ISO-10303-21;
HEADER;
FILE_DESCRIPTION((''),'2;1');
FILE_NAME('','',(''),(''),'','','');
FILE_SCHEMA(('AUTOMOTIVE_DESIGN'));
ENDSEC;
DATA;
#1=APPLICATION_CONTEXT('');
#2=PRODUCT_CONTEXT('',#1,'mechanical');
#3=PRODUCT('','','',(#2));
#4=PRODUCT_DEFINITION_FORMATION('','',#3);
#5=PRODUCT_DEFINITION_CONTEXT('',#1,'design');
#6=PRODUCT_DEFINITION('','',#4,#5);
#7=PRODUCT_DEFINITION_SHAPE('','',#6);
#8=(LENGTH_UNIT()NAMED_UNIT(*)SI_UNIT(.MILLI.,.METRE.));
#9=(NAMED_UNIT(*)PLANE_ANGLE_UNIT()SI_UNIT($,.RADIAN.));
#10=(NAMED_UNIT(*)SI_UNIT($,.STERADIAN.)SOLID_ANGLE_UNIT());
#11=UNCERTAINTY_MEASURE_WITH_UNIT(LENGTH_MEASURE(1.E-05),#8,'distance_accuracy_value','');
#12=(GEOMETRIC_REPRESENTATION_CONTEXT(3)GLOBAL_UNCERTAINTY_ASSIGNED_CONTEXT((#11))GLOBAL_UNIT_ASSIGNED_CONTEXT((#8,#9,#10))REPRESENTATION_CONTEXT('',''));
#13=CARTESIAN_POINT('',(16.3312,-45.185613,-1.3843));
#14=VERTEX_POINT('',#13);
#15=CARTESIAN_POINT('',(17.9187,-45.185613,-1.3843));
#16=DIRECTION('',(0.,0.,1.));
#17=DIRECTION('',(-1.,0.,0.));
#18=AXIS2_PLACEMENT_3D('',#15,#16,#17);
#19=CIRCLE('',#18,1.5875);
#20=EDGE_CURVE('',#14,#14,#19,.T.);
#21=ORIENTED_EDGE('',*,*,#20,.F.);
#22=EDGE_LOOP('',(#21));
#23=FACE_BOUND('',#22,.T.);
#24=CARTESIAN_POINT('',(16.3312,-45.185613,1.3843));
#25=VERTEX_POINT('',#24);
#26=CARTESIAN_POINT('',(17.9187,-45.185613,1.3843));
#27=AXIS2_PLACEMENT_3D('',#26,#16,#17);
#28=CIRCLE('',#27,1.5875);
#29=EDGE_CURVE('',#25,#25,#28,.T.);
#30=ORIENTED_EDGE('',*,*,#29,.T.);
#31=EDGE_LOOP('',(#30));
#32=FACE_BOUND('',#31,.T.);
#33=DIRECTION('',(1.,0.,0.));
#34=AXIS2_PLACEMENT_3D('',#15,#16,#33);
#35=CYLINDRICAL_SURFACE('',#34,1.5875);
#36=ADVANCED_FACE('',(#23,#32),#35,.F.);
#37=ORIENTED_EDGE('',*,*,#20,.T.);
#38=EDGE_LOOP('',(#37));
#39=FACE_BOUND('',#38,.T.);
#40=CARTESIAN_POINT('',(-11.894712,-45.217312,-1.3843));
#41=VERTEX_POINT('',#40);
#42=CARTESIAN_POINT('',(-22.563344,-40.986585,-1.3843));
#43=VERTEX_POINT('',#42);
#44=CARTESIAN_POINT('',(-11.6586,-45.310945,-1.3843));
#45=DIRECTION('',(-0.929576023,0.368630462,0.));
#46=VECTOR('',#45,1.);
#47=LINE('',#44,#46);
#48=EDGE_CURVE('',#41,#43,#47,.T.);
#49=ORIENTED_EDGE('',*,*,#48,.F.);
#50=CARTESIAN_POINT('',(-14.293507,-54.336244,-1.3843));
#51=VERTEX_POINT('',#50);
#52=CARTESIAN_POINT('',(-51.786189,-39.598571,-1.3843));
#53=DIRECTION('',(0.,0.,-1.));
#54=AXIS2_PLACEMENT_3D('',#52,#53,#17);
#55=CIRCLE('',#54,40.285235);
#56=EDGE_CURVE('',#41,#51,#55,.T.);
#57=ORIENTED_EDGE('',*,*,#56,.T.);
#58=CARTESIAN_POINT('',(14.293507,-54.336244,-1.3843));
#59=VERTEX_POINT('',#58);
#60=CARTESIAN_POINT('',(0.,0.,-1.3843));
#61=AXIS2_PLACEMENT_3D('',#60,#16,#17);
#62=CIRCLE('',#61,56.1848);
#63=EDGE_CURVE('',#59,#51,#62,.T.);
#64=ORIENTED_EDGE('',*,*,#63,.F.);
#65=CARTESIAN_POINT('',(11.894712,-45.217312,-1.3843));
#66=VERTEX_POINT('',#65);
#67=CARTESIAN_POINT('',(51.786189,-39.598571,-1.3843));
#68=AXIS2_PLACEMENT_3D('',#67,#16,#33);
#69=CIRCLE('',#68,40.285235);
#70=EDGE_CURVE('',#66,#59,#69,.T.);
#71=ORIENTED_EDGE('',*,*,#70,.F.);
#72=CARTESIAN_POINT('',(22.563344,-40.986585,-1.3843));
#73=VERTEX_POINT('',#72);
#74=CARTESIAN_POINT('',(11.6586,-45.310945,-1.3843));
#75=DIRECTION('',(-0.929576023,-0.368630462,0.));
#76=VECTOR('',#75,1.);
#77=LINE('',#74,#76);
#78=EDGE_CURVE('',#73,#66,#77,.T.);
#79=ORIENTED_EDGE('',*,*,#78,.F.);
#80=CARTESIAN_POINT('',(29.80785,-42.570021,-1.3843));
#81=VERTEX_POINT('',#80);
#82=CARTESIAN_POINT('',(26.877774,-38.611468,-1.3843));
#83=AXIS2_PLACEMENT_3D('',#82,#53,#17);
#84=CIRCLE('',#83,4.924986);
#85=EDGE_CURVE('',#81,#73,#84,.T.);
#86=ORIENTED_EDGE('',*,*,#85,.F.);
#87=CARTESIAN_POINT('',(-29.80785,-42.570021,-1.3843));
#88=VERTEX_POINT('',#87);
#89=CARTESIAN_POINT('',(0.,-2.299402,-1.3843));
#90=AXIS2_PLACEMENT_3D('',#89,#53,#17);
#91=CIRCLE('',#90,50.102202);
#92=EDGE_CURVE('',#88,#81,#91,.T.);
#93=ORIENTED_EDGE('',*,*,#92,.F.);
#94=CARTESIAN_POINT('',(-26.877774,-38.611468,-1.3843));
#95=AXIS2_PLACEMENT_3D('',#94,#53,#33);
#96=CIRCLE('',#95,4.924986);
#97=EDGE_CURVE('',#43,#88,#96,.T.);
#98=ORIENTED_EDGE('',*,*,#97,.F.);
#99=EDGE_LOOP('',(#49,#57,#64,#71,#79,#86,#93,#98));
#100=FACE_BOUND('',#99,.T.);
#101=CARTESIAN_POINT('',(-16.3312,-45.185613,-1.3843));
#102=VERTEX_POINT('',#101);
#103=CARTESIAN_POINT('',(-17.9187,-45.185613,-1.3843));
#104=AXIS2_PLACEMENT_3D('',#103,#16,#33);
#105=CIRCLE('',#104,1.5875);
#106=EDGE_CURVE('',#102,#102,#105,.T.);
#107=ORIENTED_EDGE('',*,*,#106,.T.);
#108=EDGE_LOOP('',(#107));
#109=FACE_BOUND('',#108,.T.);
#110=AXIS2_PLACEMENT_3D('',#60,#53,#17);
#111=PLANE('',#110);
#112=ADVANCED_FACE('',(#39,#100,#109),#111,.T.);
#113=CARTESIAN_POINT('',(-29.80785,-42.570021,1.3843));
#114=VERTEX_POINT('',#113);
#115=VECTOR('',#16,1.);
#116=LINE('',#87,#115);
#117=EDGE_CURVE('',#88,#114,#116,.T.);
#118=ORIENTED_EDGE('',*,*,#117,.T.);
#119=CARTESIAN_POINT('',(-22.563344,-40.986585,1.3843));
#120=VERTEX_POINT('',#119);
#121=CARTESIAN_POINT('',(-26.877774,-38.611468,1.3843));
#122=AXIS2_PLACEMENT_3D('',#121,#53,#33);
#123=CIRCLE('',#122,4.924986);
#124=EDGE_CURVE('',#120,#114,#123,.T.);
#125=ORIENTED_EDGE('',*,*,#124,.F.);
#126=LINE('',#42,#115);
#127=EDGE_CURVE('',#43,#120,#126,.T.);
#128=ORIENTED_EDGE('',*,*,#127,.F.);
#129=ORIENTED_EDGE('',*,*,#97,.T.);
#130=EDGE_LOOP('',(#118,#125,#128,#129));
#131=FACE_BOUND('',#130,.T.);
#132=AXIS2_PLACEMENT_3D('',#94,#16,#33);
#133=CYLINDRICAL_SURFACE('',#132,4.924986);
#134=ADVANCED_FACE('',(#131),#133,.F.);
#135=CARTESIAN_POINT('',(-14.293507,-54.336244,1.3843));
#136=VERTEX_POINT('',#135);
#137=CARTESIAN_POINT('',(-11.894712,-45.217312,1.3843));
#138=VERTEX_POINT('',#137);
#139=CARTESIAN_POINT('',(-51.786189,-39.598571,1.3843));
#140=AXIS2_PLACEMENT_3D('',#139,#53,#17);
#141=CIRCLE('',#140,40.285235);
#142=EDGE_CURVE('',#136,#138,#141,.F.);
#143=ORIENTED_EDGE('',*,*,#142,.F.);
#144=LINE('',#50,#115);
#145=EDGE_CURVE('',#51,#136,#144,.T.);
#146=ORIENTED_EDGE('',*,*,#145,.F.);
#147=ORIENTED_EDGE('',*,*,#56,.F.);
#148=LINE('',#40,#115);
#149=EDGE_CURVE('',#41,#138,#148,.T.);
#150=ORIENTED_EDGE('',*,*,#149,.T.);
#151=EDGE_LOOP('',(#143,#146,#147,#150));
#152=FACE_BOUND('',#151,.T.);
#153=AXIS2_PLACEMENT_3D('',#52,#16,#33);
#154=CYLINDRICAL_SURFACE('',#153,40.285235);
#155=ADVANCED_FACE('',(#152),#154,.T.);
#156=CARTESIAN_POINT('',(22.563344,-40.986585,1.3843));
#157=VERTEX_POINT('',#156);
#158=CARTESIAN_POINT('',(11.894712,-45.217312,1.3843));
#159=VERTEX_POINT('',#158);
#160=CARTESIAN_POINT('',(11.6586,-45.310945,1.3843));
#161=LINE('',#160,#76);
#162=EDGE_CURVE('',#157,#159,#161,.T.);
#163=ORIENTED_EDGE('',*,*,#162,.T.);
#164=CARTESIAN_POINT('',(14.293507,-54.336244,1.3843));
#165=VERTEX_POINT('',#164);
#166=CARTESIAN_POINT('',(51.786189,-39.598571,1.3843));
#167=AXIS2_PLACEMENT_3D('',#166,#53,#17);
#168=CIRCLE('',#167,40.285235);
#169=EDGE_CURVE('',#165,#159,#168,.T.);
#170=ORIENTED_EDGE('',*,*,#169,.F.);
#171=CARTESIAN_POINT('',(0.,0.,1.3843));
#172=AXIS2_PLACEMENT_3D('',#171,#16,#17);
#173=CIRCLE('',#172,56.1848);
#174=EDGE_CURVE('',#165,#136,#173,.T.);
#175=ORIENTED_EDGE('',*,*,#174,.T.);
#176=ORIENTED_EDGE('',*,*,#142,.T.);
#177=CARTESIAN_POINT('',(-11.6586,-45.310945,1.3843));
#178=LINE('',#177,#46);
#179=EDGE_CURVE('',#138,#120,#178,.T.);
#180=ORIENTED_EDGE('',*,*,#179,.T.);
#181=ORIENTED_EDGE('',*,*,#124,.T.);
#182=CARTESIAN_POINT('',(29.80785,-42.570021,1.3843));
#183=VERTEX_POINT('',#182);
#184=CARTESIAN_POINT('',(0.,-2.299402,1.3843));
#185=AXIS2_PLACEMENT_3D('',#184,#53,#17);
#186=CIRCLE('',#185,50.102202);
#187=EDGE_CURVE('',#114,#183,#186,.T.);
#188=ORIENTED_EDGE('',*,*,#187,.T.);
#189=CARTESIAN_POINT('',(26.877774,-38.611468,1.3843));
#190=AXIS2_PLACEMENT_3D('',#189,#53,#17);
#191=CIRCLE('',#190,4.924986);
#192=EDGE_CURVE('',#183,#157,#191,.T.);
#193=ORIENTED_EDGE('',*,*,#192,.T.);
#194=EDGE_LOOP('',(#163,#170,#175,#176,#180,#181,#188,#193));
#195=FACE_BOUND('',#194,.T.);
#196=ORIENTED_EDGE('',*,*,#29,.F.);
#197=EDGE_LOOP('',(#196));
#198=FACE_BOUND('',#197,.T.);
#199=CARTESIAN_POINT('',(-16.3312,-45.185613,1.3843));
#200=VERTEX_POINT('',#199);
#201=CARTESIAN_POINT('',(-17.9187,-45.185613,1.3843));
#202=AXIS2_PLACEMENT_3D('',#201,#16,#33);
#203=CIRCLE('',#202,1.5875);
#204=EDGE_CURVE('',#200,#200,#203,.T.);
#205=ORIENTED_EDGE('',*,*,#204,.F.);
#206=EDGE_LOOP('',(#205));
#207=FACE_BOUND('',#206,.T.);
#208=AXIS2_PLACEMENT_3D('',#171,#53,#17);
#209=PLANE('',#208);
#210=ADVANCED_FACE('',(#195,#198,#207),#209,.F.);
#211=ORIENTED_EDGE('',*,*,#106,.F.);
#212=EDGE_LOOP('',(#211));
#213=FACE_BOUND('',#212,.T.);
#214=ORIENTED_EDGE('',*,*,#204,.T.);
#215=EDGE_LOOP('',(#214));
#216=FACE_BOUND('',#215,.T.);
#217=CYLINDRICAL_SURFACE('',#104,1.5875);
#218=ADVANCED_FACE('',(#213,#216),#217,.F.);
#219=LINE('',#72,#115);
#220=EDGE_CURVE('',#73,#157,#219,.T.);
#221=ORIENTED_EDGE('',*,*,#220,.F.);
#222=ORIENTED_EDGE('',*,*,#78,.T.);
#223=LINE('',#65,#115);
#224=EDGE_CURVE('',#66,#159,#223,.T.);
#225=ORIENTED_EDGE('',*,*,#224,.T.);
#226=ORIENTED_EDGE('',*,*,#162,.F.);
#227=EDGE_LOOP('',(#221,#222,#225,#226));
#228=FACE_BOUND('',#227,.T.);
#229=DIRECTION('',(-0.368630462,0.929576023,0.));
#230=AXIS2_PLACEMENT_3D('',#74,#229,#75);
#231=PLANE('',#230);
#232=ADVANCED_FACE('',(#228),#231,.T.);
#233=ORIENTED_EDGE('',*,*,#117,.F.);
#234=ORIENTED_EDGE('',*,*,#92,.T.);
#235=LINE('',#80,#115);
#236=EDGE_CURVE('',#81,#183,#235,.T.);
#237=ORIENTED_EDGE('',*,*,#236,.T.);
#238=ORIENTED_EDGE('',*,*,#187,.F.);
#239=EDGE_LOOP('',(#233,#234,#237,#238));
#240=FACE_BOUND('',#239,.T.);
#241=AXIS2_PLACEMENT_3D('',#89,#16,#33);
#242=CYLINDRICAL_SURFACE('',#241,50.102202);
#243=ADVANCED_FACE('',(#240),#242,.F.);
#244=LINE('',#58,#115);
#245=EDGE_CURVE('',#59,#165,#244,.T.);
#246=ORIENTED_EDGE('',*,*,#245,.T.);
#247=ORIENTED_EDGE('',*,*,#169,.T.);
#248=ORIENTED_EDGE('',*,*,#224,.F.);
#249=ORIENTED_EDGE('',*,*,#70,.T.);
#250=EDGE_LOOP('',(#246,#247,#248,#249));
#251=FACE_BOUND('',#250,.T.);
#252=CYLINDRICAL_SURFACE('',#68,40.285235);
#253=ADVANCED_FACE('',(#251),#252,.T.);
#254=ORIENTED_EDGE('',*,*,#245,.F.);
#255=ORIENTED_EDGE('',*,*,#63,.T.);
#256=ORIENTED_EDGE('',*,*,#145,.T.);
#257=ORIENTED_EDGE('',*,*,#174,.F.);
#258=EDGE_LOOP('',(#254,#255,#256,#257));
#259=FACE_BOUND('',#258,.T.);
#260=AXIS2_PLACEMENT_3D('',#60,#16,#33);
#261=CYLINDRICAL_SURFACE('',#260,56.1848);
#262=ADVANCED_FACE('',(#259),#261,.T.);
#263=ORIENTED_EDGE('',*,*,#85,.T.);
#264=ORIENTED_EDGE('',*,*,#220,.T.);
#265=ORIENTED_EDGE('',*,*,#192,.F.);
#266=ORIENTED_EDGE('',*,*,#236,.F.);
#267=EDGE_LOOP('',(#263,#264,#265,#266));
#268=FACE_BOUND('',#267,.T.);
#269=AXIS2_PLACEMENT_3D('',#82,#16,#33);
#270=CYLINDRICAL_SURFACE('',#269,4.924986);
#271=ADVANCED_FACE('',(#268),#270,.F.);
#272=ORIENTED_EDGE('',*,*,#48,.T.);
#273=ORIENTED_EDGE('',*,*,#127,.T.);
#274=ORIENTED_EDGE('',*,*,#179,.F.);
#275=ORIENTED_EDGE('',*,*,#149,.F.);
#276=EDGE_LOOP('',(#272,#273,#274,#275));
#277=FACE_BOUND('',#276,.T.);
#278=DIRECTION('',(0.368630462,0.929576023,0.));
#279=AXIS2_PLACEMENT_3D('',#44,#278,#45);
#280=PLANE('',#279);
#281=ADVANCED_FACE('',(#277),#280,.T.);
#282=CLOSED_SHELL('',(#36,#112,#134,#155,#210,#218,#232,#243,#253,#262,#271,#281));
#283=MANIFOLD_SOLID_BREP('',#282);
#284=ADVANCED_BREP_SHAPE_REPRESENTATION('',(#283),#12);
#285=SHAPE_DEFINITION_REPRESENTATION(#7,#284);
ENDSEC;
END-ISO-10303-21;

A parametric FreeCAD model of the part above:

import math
import FreeCAD as App
import Part
import Sketcher

V = App.Vector
Q = App.Units.Quantity

doc = App.newDocument("Part")
body = doc.addObject("PartDesign::Body", "Body")

# Sketch on XY plane
sketch1 = body.newObject("Sketcher::SketchObject", "Sketch")
sketch1.AttachmentSupport = (doc.getObject("XY_Plane"), [""])
sketch1.MapMode = "FlatFace"
sketch1.addGeometry([
    Part.LineSegment(V(-14.000447, -54.412492, 0), V(-11.6586, -45.310945, 0)),  # 0
    Part.LineSegment(V(-11.6586, -45.310945, 0), V(-22.563344, -40.986585, 0)),  # 1
    Part.ArcOfCircle(Part.Circle(V(-26.877774, -38.611468, 0), V(0, 0, 1), 4.924986), math.radians(-126.50842), math.radians(-28.833029)),  # 2
    Part.ArcOfCircle(Part.Circle(V(0, -2.299402, 0), V(0, 0, 1), 50.102202), math.radians(-53.49158), math.radians(233.49158)),  # 3
    Part.ArcOfCircle(Part.Circle(V(26.877774, -38.611468, 0), V(0, 0, 1), 4.924986), math.radians(-151.166971), math.radians(-53.49158)),  # 4
    Part.LineSegment(V(22.563344, -40.986585, 0), V(11.6586, -45.310945, 0)),  # 5
    Part.LineSegment(V(11.6586, -45.310945, 0), V(14.000447, -54.412492, 0)),  # 6
    Part.ArcOfCircle(Part.Circle(V(0, 0, 0), V(0, 0, 1), 56.1848), math.radians(-75.570671), math.radians(255.570671)),  # 7
    Part.Circle(V(-17.9187, -45.185613, 0), V(0, 0, 1), 1.5875),  # 8
    Part.Circle(V(17.9187, -45.185613, 0), V(0, 0, 1), 1.5875),  # 9
], False)
sketch1.addConstraint([
    Sketcher.Constraint("Coincident", 0, 2, 1, 1),
    Sketcher.Constraint("Coincident", 1, 2, 2, 2),
    Sketcher.Constraint("Tangent", 2, 1, 3, 2),
    Sketcher.Constraint("Tangent", 3, 1, 4, 2),
    Sketcher.Constraint("Coincident", 4, 1, 5, 1),
    Sketcher.Constraint("Coincident", 5, 2, 6, 1),
    Sketcher.Constraint("Coincident", 6, 2, 7, 1),
    Sketcher.Constraint("Coincident", 7, 2, 0, 1),
    Sketcher.Constraint("Coincident", 7, 3, -1, 1),
    Sketcher.Constraint("Equal", 2, 4),
    Sketcher.Constraint("Equal", 8, 9),
    Sketcher.Constraint("Symmetric", 2, 3, 4, 3, -2),
    Sketcher.Constraint("Symmetric", 8, 3, 9, 3, -2),
    Sketcher.Constraint("Symmetric", 0, 2, 5, 2, -2),
    Sketcher.Constraint("Horizontal", 1, 2, 4, 1),
    Sketcher.Constraint("Horizontal", 6, 2, 7, 2),
    Sketcher.Constraint("Diameter", 8, Q("0.125 in")),
    Sketcher.Constraint("Radius", 7, Q("2.212 in")),
    Sketcher.Constraint("Distance", 0, Q("0.37 in")),
    Sketcher.Constraint("DistanceX", 0, 2, -1, 1, Q("0.459 in")),
    Sketcher.Constraint("Radius", 2, 4.924986),
    Sketcher.Constraint("Radius", 3, 50.102202),
    Sketcher.Constraint("DistanceX", 8, 3, -1, 1, 17.9187),
    Sketcher.Constraint("Distance", 1, 11.730879),
    Sketcher.Constraint("DistanceX", 2, 1, -1, 1, 29.80785),
    Sketcher.Constraint("DistanceY", 2, 1, -1, 1, 42.570021),
    Sketcher.Constraint("DistanceY", 6, 2, -1, 1, 54.412492),
    Sketcher.Constraint("DistanceY", 8, 3, 3, 3, 42.886211),
])
pad1 = body.newObject("PartDesign::Pad", "Pad")
pad1.Profile = sketch1
pad1.Type = "TwoLengths"
pad1.Length = Q("0.0545 in")
pad1.Length2 = Q("0.0545 in")

# Sketch on XY plane
sketch2 = body.newObject("Sketcher::SketchObject", "Sketch001")
sketch2.AttachmentSupport = (doc.getObject("XY_Plane"), [""])
sketch2.MapMode = "FlatFace"
sketch2.addGeometry([
    Part.LineSegment(V(-14.293507, -54.336244, 0), V(-14.293507, -68.629751, 0)),  # 0
    Part.LineSegment(V(-14.293507, -68.629751, 0), V(0, -68.629751, 0)),  # 1
    Part.LineSegment(V(0, -68.629751, 0), V(0, -45.217312, 0)),  # 2
    Part.LineSegment(V(0, -45.217312, 0), V(-11.894712, -45.217312, 0)),  # 3
    Part.ArcOfCircle(Part.Circle(V(-51.786189, -39.598571, 0), V(0, 0, 1), 40.285235), math.radians(-21.458862), math.radians(-8.017407)),  # 4
], False)
sketch2.addConstraint([
    Sketcher.Constraint("Coincident", 0, 2, 1, 1),
    Sketcher.Constraint("Coincident", 1, 2, 2, 1),
    Sketcher.Constraint("Coincident", 2, 2, 3, 1),
    Sketcher.Constraint("Coincident", 3, 2, 4, 2),
    Sketcher.Constraint("Coincident", 4, 1, 0, 1),
    Sketcher.Constraint("Vertical", 0),
    Sketcher.Constraint("Horizontal", 1),
    Sketcher.Constraint("Vertical", 2),
    Sketcher.Constraint("Horizontal", 3),
    Sketcher.Constraint("PointOnObject", 1, 2, -2),
    Sketcher.Constraint("Equal", 1, 0),
    Sketcher.Constraint("Radius", 4, 40.285235),
    Sketcher.Constraint("DistanceY", 2, 1, 2, 2, 23.412439),
    Sketcher.Constraint("DistanceX", 1, 1, 1, 2, 14.293507),
    Sketcher.Constraint("DistanceX", 3, 2, 3, 1, 11.894712),
    Sketcher.Constraint("DistanceY", 4, 3, -1, 1, 39.598571),
])
pocket1 = body.newObject("PartDesign::Pocket", "Pocket")
pocket1.Profile = sketch2
pocket1.Length = 160.938728
pocket1.Midplane = True
doc.recompute()

mirrored = body.newObject("PartDesign::Mirrored", "Mirrored")
mirrored.Originals = [pocket1]
mirrored.MirrorPlane = (doc.getObject("YZ_Plane"), [""])
body.Tip = mirrored

doc.recompute()
